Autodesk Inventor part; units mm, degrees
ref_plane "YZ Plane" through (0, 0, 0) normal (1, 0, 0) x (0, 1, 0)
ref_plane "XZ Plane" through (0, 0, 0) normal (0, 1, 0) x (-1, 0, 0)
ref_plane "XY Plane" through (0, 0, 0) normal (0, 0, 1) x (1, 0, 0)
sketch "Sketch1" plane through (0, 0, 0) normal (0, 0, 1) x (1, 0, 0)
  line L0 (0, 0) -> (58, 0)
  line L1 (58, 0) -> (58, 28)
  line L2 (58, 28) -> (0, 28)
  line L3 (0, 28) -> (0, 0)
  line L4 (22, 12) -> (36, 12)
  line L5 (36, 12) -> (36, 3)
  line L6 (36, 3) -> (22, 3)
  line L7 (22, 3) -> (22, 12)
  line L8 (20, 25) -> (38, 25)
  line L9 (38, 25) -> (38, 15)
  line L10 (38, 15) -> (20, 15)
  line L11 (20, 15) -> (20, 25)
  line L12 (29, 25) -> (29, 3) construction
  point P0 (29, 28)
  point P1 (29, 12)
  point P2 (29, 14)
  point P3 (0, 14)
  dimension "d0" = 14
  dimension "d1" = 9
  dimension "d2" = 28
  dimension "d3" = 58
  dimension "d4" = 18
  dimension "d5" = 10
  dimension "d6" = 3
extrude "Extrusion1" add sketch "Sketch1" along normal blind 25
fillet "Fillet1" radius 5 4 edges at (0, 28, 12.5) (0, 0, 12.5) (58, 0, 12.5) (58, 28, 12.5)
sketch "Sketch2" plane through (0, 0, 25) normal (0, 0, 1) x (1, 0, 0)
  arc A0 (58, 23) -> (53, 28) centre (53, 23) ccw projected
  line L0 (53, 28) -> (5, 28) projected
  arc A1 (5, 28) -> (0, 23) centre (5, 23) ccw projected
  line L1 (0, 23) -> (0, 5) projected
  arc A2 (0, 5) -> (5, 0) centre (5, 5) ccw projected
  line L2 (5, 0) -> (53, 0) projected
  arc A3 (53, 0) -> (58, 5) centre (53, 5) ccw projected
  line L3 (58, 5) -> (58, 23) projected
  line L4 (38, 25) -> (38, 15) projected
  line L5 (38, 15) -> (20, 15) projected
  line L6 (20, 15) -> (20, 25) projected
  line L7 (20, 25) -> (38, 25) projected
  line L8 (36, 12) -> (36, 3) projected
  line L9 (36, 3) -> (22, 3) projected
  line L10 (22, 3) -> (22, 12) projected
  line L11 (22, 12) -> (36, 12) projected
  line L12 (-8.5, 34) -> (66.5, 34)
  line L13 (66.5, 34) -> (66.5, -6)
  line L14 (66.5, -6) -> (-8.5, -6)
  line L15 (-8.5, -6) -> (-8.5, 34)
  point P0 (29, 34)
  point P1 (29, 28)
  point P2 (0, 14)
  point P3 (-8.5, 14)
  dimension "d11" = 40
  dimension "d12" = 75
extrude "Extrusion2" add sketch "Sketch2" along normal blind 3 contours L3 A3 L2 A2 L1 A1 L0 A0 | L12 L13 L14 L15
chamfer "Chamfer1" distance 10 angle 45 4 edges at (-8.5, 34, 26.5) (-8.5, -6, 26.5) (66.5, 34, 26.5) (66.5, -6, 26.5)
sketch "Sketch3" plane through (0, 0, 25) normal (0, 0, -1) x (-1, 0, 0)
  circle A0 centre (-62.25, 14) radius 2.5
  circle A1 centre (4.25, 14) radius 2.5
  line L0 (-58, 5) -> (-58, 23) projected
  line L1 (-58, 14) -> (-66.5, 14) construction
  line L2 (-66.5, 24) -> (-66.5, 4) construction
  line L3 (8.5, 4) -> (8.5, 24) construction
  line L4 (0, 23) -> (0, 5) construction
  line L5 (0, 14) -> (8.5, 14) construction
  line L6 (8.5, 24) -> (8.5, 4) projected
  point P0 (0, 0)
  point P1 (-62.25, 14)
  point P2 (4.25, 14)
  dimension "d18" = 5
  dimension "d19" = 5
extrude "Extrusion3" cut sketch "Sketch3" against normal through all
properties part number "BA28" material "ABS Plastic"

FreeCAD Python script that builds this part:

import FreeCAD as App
import Part
import Sketcher
Q = App.Units.Quantity


def edges_at(feature, points):
    """Names of the edges that pass closest to the given points."""
    edges = feature.Shape.Edges
    near = lambda p: min(range(len(edges)), key=lambda i: edges[i].distToShape(Part.Vertex(*p))[0])
    return sorted({f"Edge{near(p) + 1}" for p in points})

doc = App.newDocument("Part")
body = doc.addObject("PartDesign::Body", "Body")

sketch1 = body.newObject("Sketcher::SketchObject", "Sketch")
sketch1.AttachmentSupport = (doc.getObject("XY_Plane"), [""])
sketch1.MapMode = "FlatFace"
sketch1.addGeometry([
    Part.LineSegment(App.Vector(0, 28, 0), App.Vector(0, 0, 0)),
    Part.LineSegment(App.Vector(0, 0, 0), App.Vector(58, 0, 0)),
    Part.LineSegment(App.Vector(58, 0, 0), App.Vector(58, 28, 0)),
    Part.LineSegment(App.Vector(58, 28, 0), App.Vector(0, 28, 0)),
    Part.LineSegment(App.Vector(22, 3, 0), App.Vector(22, 12, 0)),
    Part.LineSegment(App.Vector(22, 12, 0), App.Vector(36, 12, 0)),
    Part.LineSegment(App.Vector(36, 12, 0), App.Vector(36, 3, 0)),
    Part.LineSegment(App.Vector(36, 3, 0), App.Vector(22, 3, 0)),
    Part.LineSegment(App.Vector(20, 15, 0), App.Vector(20, 25, 0)),
    Part.LineSegment(App.Vector(20, 25, 0), App.Vector(38, 25, 0)),
    Part.LineSegment(App.Vector(38, 25, 0), App.Vector(38, 15, 0)),
    Part.LineSegment(App.Vector(38, 15, 0), App.Vector(20, 15, 0)),
], False)
sketch1.addConstraint([
    Sketcher.Constraint("Coincident", 0, 2, 1, 1),
    Sketcher.Constraint("Coincident", 1, 2, 2, 1),
    Sketcher.Constraint("Coincident", 2, 2, 3, 1),
    Sketcher.Constraint("Coincident", 3, 2, 0, 1),
    Sketcher.Constraint("Coincident", 4, 2, 5, 1),
    Sketcher.Constraint("Coincident", 5, 2, 6, 1),
    Sketcher.Constraint("Coincident", 6, 2, 7, 1),
    Sketcher.Constraint("Coincident", 7, 2, 4, 1),
    Sketcher.Constraint("Coincident", 8, 2, 9, 1),
    Sketcher.Constraint("Coincident", 9, 2, 10, 1),
    Sketcher.Constraint("Coincident", 10, 2, 11, 1),
    Sketcher.Constraint("Coincident", 11, 2, 8, 1),
    Sketcher.Constraint("Vertical", 0),
    Sketcher.Constraint("Horizontal", 1),
    Sketcher.Constraint("Vertical", 2),
    Sketcher.Constraint("Horizontal", 3),
    Sketcher.Constraint("Vertical", 4),
    Sketcher.Constraint("Horizontal", 5),
    Sketcher.Constraint("Vertical", 6),
    Sketcher.Constraint("Horizontal", 7),
    Sketcher.Constraint("Vertical", 8),
    Sketcher.Constraint("Horizontal", 9),
    Sketcher.Constraint("Vertical", 10),
    Sketcher.Constraint("Horizontal", 11),
    Sketcher.Constraint("Coincident", 0, 2, -1, 1),
    Sketcher.Constraint("DistanceX", 1, 1, 1, 2, Q("58 mm")),
    Sketcher.Constraint("DistanceX", 5, 1, 5, 2, Q("14 mm")),
    Sketcher.Constraint("DistanceX", 9, 1, 9, 2, Q("18 mm")),
    Sketcher.Constraint("DistanceY", 0, 2, 0, 1, Q("28 mm")),
    Sketcher.Constraint("DistanceY", 4, 1, 4, 2, Q("9 mm")),
    Sketcher.Constraint("DistanceY", 8, 1, 8, 2, Q("10 mm")),
    Sketcher.Constraint("DistanceY", -1, 1, 6, 2, Q("3 mm")),
    Sketcher.Constraint("DistanceY", 8, 2, 3, 2, Q("3 mm")),
    Sketcher.Constraint("DistanceX", -1, 1, 4, 2, Q("22 mm")),
    Sketcher.Constraint("DistanceX", -1, 1, 8, 2, Q("20 mm")),
])
pad1 = body.newObject("PartDesign::Pad", "Pad")
pad1.Profile = sketch1
pad1.Length = 25
doc.recompute()

fillet = body.newObject("PartDesign::Fillet", "Fillet")
fillet.Base = (pad1, edges_at(pad1, [
    (0, 28, 12.5),
    (0, 0, 12.5),
    (58, 0, 12.5),
    (58, 28, 12.5),
]))
fillet.Radius = 5

sketch2 = body.newObject("Sketcher::SketchObject", "Sketch001")
sketch2.AttachmentSupport = (doc.getObject("XY_Plane"), [""])
sketch2.MapMode = "FlatFace"
sketch2.AttachmentOffset = App.Placement(App.Vector(0, 0, 25), App.Rotation())
sketch2.addGeometry([
    Part.LineSegment(App.Vector(66.5, 34, 0), App.Vector(-8.5, 34, 0)),
    Part.LineSegment(App.Vector(-8.5, 34, 0), App.Vector(-8.5, -6, 0)),
    Part.LineSegment(App.Vector(-8.5, -6, 0), App.Vector(66.5, -6, 0)),
    Part.LineSegment(App.Vector(66.5, -6, 0), App.Vector(66.5, 34, 0)),
    Part.LineSegment(App.Vector(22, 12, 0), App.Vector(36, 12, 0)),
    Part.LineSegment(App.Vector(36, 12, 0), App.Vector(36, 3, 0)),
    Part.LineSegment(App.Vector(36, 3, 0), App.Vector(22, 3, 0)),
    Part.LineSegment(App.Vector(22, 3, 0), App.Vector(22, 12, 0)),
    Part.LineSegment(App.Vector(20, 25, 0), App.Vector(38, 25, 0)),
    Part.LineSegment(App.Vector(38, 25, 0), App.Vector(38, 15, 0)),
    Part.LineSegment(App.Vector(38, 15, 0), App.Vector(20, 15, 0)),
    Part.LineSegment(App.Vector(20, 15, 0), App.Vector(20, 25, 0)),
], False)
sketch2.addConstraint([
    Sketcher.Constraint("Coincident", 0, 2, 1, 1),
    Sketcher.Constraint("Coincident", 1, 2, 2, 1),
    Sketcher.Constraint("Coincident", 2, 2, 3, 1),
    Sketcher.Constraint("Coincident", 3, 2, 0, 1),
    Sketcher.Constraint("Coincident", 4, 2, 5, 1),
    Sketcher.Constraint("Coincident", 5, 2, 6, 1),
    Sketcher.Constraint("Coincident", 6, 2, 7, 1),
    Sketcher.Constraint("Coincident", 7, 2, 4, 1),
    Sketcher.Constraint("Coincident", 8, 2, 9, 1),
    Sketcher.Constraint("Coincident", 9, 2, 10, 1),
    Sketcher.Constraint("Coincident", 10, 2, 11, 1),
    Sketcher.Constraint("Coincident", 11, 2, 8, 1),
    Sketcher.Constraint("Horizontal", 0),
    Sketcher.Constraint("Vertical", 1),
    Sketcher.Constraint("Horizontal", 2),
    Sketcher.Constraint("Vertical", 3),
    Sketcher.Constraint("Horizontal", 4),
    Sketcher.Constraint("Vertical", 5),
    Sketcher.Constraint("Horizontal", 6),
    Sketcher.Constraint("Vertical", 7),
    Sketcher.Constraint("Horizontal", 8),
    Sketcher.Constraint("Vertical", 9),
    Sketcher.Constraint("Horizontal", 10),
    Sketcher.Constraint("Vertical", 11),
    Sketcher.Constraint("DistanceX", 0, 2, 0, 1, Q("75 mm")),
    Sketcher.Constraint("DistanceY", 1, 2, 1, 1, Q("40 mm")),
    Sketcher.Constraint("DistanceX", 4, 1, 4, 2, Q("14 mm")),
    Sketcher.Constraint("DistanceX", 8, 1, 8, 2, Q("18 mm")),
    Sketcher.Constraint("DistanceY", 5, 2, 5, 1, Q("9 mm")),
    Sketcher.Constraint("DistanceY", 9, 2, 9, 1, Q("10 mm")),
    Sketcher.Constraint("DistanceY", -1, 1, 0, 2, Q("34 mm")),
    Sketcher.Constraint("DistanceX", -1, 1, 4, 2, Q("36 mm")),
    Sketcher.Constraint("DistanceY", -1, 1, 4, 2, Q("12 mm")),
    Sketcher.Constraint("DistanceX", -1, 1, 8, 2, Q("38 mm")),
    Sketcher.Constraint("DistanceY", -1, 1, 8, 2, Q("25 mm")),
    Sketcher.Constraint("DistanceX", 0, 2, -1, 1, Q("8.5 mm")),
])
pad2 = body.newObject("PartDesign::Pad", "Pad001")
pad2.Profile = sketch2
pad2.Length = 3
doc.recompute()

chamfer = body.newObject("PartDesign::Chamfer", "Chamfer")
chamfer.Base = (pad2, edges_at(pad2, [
    (-8.5, 34, 26.5),
    (-8.5, -6, 26.5),
    (66.5, 34, 26.5),
    (66.5, -6, 26.5),
]))
chamfer.Size = 10

sketch3 = body.newObject("Sketcher::SketchObject", "Sketch002")
sketch3.AttachmentSupport = (doc.getObject("XY_Plane"), [""])
sketch3.MapMode = "FlatFace"
sketch3.AttachmentOffset = App.Placement(App.Vector(0, 0, 25), App.Rotation())
sketch3.addGeometry([
    Part.Circle(App.Vector(62.25, 14, 0), App.Vector(0, 0, 1), 2.5),
    Part.Circle(App.Vector(-4.25, 14, 0), App.Vector(0, 0, 1), 2.5),
], False)
sketch3.addConstraint([
    Sketcher.Constraint("Equal", 0, 1),
    Sketcher.Constraint("Horizontal", 0, 3, 1, 3),
    Sketcher.Constraint("Diameter", 0, Q("5 mm")),
    Sketcher.Constraint("DistanceY", -1, 1, 0, 3, Q("14 mm")),
    Sketcher.Constraint("DistanceX", 1, 3, 0, 3, Q("66.5 mm")),
    Sketcher.Constraint("DistanceX", -1, 1, 0, 3, Q("62.25 mm")),
])
pocket1 = body.newObject("PartDesign::Pocket", "Pocket")
pocket1.Profile = sketch3
pocket1.Type = "ThroughAll"
pocket1.Reversed = True

doc.recompute()
